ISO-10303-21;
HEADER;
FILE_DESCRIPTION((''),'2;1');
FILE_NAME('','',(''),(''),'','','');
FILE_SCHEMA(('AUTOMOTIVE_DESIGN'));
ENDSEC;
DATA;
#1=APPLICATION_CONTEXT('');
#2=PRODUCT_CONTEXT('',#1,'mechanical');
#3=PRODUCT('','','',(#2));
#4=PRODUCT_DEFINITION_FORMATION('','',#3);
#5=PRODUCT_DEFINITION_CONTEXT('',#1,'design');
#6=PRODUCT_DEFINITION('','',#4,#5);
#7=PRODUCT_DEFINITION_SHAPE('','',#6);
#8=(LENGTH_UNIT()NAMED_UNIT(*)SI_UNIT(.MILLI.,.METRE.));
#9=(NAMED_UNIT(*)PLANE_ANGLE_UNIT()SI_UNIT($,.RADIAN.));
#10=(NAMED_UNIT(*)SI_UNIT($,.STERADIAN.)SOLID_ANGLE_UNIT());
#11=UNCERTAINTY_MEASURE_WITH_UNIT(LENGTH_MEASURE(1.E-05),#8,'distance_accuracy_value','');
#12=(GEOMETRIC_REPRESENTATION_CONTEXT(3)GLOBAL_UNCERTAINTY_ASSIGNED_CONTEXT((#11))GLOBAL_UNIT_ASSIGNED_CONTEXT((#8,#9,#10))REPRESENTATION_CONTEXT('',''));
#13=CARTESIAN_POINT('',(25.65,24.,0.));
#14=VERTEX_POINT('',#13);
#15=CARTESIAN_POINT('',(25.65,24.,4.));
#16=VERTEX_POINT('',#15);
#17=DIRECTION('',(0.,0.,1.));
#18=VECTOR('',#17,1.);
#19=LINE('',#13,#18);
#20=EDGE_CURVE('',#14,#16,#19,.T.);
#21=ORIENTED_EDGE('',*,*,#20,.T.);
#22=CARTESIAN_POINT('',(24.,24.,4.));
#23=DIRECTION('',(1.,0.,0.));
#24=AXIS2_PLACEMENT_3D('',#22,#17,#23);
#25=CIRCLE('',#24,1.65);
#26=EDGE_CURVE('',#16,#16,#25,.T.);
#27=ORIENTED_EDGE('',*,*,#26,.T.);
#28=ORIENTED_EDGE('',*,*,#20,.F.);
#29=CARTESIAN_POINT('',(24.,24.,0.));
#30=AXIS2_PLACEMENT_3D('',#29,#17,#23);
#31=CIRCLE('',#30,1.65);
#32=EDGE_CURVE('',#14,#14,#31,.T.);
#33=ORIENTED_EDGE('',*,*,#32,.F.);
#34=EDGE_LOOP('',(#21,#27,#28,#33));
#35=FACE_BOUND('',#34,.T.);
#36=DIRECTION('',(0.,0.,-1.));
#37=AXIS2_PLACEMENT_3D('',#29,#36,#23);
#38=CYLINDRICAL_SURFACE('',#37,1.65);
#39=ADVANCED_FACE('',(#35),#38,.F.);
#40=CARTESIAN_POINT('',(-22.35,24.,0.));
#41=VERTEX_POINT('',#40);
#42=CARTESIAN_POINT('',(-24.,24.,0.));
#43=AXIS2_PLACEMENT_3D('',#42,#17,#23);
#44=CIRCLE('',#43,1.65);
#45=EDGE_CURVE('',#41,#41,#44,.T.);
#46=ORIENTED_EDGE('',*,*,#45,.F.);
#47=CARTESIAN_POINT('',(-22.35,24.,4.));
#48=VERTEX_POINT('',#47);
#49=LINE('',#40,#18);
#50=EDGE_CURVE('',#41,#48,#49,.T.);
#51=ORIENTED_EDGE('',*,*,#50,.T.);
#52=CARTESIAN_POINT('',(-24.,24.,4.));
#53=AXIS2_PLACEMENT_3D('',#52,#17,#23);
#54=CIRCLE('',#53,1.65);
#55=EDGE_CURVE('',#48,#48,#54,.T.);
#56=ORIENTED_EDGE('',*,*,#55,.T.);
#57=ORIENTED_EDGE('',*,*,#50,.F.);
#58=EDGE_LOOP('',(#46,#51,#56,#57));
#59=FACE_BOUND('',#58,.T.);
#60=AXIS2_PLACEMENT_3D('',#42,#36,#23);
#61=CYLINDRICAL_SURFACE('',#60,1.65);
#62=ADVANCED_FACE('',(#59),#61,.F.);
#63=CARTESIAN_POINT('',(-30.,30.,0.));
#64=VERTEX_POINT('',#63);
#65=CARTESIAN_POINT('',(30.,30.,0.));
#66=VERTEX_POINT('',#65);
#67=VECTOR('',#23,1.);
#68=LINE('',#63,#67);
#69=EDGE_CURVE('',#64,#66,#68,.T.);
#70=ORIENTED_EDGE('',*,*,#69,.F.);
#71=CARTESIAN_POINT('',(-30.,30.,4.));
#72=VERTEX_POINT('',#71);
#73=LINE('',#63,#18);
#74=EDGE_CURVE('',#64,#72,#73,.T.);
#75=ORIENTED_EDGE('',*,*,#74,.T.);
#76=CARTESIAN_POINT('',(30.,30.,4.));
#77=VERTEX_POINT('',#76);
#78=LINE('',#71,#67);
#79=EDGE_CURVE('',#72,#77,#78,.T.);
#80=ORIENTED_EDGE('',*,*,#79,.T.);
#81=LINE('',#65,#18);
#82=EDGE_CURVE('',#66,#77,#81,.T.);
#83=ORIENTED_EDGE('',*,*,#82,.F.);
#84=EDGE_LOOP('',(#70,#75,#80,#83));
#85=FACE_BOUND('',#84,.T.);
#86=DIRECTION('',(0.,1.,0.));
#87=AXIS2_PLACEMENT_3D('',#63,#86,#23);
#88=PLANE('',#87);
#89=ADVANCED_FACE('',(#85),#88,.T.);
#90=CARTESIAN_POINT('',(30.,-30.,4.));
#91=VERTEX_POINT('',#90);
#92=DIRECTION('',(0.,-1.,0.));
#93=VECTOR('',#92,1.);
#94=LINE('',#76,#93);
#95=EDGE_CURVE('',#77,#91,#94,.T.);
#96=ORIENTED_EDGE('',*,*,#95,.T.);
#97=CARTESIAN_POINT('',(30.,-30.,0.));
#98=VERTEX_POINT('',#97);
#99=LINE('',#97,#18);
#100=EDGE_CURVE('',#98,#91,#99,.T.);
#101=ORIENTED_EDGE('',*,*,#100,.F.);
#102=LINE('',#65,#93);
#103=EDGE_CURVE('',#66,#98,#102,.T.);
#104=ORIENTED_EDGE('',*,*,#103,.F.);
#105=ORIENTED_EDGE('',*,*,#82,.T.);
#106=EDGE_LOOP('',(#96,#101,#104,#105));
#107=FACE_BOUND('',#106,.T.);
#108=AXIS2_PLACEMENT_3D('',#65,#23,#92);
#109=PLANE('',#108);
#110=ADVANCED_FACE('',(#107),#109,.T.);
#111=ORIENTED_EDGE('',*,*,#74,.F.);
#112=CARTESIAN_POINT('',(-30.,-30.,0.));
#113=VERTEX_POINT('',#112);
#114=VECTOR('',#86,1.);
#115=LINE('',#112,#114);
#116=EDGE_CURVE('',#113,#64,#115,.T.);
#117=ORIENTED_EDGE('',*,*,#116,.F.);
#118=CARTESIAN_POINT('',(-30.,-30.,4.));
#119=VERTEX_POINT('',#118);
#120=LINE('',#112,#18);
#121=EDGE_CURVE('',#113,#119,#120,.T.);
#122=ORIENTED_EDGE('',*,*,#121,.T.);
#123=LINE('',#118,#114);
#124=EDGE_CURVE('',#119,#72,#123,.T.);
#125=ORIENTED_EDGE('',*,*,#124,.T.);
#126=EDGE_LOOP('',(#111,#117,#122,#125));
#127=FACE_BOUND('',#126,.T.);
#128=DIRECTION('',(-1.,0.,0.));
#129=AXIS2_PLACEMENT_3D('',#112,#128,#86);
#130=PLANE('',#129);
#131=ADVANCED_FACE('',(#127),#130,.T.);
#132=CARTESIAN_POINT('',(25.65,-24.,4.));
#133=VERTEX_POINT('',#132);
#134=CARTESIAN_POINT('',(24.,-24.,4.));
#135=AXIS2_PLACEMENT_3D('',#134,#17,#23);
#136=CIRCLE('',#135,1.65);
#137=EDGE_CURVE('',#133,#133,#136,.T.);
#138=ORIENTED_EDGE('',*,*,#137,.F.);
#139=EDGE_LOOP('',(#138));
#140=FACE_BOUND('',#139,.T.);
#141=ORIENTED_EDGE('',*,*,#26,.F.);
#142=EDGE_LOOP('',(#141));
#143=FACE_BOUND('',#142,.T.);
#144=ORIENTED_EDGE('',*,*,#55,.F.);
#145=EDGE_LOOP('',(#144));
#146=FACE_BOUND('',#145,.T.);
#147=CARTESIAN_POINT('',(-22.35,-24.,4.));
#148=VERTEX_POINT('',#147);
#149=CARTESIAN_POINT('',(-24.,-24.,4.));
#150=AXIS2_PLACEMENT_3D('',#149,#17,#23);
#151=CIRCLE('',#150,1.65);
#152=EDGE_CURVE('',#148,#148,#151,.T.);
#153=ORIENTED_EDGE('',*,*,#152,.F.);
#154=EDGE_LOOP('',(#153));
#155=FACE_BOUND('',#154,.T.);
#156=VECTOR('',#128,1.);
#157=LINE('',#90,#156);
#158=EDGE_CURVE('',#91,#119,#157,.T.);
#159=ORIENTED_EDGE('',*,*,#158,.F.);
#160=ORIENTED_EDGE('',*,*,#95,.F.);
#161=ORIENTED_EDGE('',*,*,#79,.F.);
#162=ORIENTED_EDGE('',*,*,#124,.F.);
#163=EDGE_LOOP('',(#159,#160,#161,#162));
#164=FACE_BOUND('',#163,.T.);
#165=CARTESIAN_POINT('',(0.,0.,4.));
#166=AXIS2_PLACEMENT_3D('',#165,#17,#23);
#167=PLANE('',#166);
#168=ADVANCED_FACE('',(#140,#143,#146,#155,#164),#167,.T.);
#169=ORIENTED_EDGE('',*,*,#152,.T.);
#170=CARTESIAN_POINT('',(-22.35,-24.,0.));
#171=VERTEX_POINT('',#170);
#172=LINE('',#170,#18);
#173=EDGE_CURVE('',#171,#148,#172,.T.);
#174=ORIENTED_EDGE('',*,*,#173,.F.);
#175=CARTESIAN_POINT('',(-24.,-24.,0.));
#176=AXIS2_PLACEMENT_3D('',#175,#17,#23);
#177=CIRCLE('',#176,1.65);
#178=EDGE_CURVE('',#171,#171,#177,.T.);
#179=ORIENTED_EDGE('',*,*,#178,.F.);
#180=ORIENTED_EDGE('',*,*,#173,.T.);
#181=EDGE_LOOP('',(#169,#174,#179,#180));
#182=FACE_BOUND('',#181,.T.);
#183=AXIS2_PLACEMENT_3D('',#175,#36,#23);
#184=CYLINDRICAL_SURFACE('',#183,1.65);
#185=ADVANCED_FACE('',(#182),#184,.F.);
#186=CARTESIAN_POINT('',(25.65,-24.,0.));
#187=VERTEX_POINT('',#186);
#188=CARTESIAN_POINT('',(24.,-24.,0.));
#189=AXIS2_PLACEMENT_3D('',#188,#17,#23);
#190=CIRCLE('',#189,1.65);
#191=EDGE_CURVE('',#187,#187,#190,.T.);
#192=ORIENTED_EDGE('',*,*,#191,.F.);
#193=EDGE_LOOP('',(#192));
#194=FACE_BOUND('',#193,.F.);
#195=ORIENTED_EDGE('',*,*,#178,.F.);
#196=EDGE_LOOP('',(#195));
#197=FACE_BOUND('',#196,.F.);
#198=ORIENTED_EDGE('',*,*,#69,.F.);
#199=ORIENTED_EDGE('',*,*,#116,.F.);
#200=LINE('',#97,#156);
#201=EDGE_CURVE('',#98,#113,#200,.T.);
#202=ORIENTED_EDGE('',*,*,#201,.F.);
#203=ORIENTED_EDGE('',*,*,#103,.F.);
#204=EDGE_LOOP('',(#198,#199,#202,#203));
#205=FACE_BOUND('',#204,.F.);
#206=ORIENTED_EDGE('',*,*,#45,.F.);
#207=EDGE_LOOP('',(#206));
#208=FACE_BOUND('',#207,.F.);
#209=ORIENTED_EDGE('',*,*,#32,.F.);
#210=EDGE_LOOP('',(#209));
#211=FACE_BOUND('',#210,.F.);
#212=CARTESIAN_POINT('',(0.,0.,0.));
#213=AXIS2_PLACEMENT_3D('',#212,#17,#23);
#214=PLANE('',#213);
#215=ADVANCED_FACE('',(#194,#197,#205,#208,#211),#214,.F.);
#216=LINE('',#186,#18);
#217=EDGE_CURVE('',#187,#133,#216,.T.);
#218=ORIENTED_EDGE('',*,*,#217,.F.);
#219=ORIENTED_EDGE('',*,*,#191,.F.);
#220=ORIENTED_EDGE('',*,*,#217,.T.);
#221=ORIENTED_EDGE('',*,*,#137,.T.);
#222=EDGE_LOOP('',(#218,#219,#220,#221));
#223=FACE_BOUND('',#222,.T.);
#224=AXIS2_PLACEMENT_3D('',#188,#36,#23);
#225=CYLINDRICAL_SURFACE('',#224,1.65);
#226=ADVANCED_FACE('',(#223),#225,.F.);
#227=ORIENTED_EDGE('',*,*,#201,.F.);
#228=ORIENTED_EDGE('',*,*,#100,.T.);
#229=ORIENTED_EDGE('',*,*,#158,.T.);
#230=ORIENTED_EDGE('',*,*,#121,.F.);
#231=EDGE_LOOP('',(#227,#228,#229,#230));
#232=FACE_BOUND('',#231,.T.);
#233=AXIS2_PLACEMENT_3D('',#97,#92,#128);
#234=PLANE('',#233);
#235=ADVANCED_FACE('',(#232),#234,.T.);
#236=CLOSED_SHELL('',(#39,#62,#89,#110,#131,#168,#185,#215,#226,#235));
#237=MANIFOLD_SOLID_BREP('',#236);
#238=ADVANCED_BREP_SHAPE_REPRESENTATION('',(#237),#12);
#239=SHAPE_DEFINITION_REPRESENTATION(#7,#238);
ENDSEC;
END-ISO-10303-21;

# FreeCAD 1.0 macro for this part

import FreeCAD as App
import Part
import Sketcher

V = App.Vector
Q = App.Units.Quantity


def add_polygon(sketch, points):
    """Adds a closed chain of lines whose ends are joined by coincident constraints."""
    first, n = sketch.GeometryCount, len(points)
    for a, b in zip(points, points[1:] + points[:1]):
        sketch.addGeometry(Part.LineSegment(App.Vector(*a, 0), App.Vector(*b, 0)), False)
    for i in range(n):
        sketch.addConstraint(Sketcher.Constraint("Coincident", first + i, 2, first + (i + 1) % n, 1))

doc = App.newDocument("Part")
body = doc.addObject("PartDesign::Body", "Body")

# Sketch on XY plane
sketch1 = body.newObject("Sketcher::SketchObject", "Sketch")
sketch1.AttachmentSupport = (doc.getObject("XY_Plane"), [""])
sketch1.MapMode = "FlatFace"
add_polygon(sketch1, [(30, 30), (-30, 30), (-30, -30), (30, -30)])  # lines 0-3
sketch1.addGeometry(Part.Circle(V(-24, -24, 0), V(0, 0, 1), 1.6), False)  # 4
sketch1.addGeometry(Part.Circle(V(24, -24, 0), V(0, 0, 1), 1.6), False)  # 5
sketch1.addGeometry(Part.Circle(V(-24, 24, 0), V(0, 0, 1), 1.6), False)  # 6
sketch1.addGeometry(Part.Circle(V(24, 24, 0), V(0, 0, 1), 1.6), False)  # 7
sketch1.addConstraint([
    Sketcher.Constraint("Horizontal", 0),
    Sketcher.Constraint("Vertical", 1),
    Sketcher.Constraint("Horizontal", 2),
    Sketcher.Constraint("Vertical", 3),
    Sketcher.Constraint("Equal", 4, 5),
    Sketcher.Constraint("Equal", 5, 6),
    Sketcher.Constraint("Equal", 6, 7),
    Sketcher.Constraint("Symmetric", 5, 3, 6, 3, -1, 1),
    Sketcher.Constraint("Symmetric", 4, 3, 7, 3, -1, 1),
    Sketcher.Constraint("Symmetric", 0, 2, 2, 2, -1, 1),
    Sketcher.Constraint("Symmetric", 4, 3, 5, 3, -2),
    Sketcher.Constraint("Equal", 2, 1),
    Sketcher.Constraint("Diameter", 4, Q("3.3 mm")),
    Sketcher.Constraint("DistanceX", 0, 2, 0, 1, Q("60 mm")),
    Sketcher.Constraint("DistanceX", 4, 3, -1, 1, Q("24 mm")),
    Sketcher.Constraint("DistanceY", 4, 3, -1, 1, Q("24 mm")),
])
pad1 = body.newObject("PartDesign::Pad", "Pad")
pad1.Profile = sketch1
pad1.Length = 4

doc.recompute()
